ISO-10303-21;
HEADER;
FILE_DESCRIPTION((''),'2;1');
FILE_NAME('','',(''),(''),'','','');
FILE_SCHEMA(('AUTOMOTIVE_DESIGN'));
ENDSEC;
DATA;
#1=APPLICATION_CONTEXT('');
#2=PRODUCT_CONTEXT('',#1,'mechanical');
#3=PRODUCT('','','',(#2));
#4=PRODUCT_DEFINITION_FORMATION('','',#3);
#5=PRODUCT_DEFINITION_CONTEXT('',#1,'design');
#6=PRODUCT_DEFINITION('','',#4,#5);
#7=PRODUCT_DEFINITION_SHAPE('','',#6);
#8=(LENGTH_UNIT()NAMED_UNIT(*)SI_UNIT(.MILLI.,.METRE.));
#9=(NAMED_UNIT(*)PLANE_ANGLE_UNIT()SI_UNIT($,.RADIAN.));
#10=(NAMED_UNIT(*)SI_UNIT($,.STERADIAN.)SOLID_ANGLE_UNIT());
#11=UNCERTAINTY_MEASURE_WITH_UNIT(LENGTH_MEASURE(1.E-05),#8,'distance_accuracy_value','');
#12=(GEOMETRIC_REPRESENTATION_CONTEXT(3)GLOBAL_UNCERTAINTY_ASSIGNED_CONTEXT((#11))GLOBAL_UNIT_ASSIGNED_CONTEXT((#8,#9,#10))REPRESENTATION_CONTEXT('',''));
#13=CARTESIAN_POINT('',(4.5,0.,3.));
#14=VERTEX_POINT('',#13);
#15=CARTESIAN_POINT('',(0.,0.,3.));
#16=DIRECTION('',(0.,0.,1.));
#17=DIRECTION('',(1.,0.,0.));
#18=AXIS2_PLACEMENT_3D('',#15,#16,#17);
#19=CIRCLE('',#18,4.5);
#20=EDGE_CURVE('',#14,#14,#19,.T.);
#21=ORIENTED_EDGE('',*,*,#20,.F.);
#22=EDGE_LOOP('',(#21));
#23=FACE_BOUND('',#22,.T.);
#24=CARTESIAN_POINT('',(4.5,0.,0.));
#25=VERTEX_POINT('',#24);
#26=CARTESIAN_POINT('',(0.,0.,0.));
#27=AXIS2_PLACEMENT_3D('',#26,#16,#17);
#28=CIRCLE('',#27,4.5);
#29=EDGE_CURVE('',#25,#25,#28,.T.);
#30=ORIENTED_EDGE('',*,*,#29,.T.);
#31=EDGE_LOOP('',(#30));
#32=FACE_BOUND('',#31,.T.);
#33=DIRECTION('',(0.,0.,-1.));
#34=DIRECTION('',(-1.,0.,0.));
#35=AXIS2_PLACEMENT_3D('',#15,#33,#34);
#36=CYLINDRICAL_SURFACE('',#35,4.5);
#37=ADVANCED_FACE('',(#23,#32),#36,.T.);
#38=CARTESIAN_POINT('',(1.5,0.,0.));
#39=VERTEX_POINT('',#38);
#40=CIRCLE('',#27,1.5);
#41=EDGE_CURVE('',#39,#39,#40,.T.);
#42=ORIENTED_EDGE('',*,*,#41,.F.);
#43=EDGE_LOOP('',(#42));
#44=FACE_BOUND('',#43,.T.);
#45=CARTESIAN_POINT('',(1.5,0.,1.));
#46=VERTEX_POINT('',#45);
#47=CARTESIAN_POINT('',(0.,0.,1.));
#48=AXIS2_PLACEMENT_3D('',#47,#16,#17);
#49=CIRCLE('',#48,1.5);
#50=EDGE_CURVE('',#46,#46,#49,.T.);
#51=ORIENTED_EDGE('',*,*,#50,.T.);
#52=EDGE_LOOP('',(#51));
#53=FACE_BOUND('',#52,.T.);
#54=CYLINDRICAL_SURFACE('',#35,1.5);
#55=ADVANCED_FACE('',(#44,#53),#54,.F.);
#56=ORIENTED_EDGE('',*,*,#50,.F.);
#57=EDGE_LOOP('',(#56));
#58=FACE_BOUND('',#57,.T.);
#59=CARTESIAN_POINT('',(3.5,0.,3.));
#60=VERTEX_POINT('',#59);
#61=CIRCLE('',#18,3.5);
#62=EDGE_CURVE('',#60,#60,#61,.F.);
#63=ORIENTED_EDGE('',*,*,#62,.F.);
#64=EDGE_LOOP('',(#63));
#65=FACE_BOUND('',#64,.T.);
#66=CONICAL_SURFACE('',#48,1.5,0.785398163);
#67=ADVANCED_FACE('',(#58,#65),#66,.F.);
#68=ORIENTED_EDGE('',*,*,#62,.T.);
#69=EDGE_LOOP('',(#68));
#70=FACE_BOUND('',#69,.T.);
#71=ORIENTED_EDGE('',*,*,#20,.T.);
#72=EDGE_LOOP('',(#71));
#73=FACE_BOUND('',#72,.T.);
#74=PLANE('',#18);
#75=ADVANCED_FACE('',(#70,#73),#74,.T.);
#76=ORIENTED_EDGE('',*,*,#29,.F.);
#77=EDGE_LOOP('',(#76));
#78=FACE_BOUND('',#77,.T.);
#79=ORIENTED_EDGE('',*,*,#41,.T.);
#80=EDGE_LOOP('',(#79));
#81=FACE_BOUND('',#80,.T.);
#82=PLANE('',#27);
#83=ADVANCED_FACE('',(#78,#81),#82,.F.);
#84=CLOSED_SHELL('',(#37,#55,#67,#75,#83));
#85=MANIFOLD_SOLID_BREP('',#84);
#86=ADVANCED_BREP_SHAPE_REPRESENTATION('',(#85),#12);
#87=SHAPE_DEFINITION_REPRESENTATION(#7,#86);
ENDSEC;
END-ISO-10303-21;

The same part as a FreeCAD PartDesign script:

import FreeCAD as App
import Part
import Sketcher
from FreeCAD import Vector
Q = App.Units.Quantity


def edges_at(feature, points):
    """Names of the edges that pass closest to the given points."""
    edges = feature.Shape.Edges
    near = lambda p: min(range(len(edges)), key=lambda i: edges[i].distToShape(Part.Vertex(*p))[0])
    return sorted({f"Edge{near(p) + 1}" for p in points})

doc = App.newDocument("Part")
params = doc.addObject("Spreadsheet::Sheet", "Params")
for row, (alias, value) in enumerate([
    ("sketch1_diameter", "9 mm"),
    ("sketch1_diameter2", "3 mm"),
    ("pad1_length", "3 mm"),
    ("chamfer_size", "2 mm"),
], start=1):
    params.set(f"A{row}", alias)
    params.set(f"B{row}", "=" + value)
    params.setAlias(f"B{row}", alias)

body = doc.addObject("PartDesign::Body", "Body")

# Sketch on XY plane
sketch1 = body.newObject("Sketcher::SketchObject", "Sketch")
sketch1.AttachmentSupport = (doc.getObject("XY_Plane"), [""])
sketch1.MapMode = "FlatFace"
sketch1.addGeometry([
    Part.Circle(Vector(0, 0, 0), Vector(0, 0, 1), 4.5),
    Part.Circle(Vector(0, 0, 0), Vector(0, 0, 1), 1.5),
], False)
sketch1.addConstraint([
    Sketcher.Constraint("Coincident", 0, 3, -1, 1),
    Sketcher.Constraint("Coincident", 1, 3, -1, 1),
    Sketcher.Constraint("Diameter", 0, Q("9 mm")),
    Sketcher.Constraint("Diameter", 1, Q("3 mm")),
])
sketch1.setExpression("Constraints[2]", "Params.sketch1_diameter")
sketch1.setExpression("Constraints[3]", "Params.sketch1_diameter2")
pad1 = body.newObject("PartDesign::Pad", "Pad")
pad1.Profile = sketch1
pad1.setExpression("Length", "Params.pad1_length")
doc.recompute()

chamfer = body.newObject("PartDesign::Chamfer", "Chamfer")
chamfer.Base = (pad1, edges_at(pad1, [(-1.5, 0, 3)]))
chamfer.setExpression("Size", "Params.chamfer_size")

doc.recompute()
